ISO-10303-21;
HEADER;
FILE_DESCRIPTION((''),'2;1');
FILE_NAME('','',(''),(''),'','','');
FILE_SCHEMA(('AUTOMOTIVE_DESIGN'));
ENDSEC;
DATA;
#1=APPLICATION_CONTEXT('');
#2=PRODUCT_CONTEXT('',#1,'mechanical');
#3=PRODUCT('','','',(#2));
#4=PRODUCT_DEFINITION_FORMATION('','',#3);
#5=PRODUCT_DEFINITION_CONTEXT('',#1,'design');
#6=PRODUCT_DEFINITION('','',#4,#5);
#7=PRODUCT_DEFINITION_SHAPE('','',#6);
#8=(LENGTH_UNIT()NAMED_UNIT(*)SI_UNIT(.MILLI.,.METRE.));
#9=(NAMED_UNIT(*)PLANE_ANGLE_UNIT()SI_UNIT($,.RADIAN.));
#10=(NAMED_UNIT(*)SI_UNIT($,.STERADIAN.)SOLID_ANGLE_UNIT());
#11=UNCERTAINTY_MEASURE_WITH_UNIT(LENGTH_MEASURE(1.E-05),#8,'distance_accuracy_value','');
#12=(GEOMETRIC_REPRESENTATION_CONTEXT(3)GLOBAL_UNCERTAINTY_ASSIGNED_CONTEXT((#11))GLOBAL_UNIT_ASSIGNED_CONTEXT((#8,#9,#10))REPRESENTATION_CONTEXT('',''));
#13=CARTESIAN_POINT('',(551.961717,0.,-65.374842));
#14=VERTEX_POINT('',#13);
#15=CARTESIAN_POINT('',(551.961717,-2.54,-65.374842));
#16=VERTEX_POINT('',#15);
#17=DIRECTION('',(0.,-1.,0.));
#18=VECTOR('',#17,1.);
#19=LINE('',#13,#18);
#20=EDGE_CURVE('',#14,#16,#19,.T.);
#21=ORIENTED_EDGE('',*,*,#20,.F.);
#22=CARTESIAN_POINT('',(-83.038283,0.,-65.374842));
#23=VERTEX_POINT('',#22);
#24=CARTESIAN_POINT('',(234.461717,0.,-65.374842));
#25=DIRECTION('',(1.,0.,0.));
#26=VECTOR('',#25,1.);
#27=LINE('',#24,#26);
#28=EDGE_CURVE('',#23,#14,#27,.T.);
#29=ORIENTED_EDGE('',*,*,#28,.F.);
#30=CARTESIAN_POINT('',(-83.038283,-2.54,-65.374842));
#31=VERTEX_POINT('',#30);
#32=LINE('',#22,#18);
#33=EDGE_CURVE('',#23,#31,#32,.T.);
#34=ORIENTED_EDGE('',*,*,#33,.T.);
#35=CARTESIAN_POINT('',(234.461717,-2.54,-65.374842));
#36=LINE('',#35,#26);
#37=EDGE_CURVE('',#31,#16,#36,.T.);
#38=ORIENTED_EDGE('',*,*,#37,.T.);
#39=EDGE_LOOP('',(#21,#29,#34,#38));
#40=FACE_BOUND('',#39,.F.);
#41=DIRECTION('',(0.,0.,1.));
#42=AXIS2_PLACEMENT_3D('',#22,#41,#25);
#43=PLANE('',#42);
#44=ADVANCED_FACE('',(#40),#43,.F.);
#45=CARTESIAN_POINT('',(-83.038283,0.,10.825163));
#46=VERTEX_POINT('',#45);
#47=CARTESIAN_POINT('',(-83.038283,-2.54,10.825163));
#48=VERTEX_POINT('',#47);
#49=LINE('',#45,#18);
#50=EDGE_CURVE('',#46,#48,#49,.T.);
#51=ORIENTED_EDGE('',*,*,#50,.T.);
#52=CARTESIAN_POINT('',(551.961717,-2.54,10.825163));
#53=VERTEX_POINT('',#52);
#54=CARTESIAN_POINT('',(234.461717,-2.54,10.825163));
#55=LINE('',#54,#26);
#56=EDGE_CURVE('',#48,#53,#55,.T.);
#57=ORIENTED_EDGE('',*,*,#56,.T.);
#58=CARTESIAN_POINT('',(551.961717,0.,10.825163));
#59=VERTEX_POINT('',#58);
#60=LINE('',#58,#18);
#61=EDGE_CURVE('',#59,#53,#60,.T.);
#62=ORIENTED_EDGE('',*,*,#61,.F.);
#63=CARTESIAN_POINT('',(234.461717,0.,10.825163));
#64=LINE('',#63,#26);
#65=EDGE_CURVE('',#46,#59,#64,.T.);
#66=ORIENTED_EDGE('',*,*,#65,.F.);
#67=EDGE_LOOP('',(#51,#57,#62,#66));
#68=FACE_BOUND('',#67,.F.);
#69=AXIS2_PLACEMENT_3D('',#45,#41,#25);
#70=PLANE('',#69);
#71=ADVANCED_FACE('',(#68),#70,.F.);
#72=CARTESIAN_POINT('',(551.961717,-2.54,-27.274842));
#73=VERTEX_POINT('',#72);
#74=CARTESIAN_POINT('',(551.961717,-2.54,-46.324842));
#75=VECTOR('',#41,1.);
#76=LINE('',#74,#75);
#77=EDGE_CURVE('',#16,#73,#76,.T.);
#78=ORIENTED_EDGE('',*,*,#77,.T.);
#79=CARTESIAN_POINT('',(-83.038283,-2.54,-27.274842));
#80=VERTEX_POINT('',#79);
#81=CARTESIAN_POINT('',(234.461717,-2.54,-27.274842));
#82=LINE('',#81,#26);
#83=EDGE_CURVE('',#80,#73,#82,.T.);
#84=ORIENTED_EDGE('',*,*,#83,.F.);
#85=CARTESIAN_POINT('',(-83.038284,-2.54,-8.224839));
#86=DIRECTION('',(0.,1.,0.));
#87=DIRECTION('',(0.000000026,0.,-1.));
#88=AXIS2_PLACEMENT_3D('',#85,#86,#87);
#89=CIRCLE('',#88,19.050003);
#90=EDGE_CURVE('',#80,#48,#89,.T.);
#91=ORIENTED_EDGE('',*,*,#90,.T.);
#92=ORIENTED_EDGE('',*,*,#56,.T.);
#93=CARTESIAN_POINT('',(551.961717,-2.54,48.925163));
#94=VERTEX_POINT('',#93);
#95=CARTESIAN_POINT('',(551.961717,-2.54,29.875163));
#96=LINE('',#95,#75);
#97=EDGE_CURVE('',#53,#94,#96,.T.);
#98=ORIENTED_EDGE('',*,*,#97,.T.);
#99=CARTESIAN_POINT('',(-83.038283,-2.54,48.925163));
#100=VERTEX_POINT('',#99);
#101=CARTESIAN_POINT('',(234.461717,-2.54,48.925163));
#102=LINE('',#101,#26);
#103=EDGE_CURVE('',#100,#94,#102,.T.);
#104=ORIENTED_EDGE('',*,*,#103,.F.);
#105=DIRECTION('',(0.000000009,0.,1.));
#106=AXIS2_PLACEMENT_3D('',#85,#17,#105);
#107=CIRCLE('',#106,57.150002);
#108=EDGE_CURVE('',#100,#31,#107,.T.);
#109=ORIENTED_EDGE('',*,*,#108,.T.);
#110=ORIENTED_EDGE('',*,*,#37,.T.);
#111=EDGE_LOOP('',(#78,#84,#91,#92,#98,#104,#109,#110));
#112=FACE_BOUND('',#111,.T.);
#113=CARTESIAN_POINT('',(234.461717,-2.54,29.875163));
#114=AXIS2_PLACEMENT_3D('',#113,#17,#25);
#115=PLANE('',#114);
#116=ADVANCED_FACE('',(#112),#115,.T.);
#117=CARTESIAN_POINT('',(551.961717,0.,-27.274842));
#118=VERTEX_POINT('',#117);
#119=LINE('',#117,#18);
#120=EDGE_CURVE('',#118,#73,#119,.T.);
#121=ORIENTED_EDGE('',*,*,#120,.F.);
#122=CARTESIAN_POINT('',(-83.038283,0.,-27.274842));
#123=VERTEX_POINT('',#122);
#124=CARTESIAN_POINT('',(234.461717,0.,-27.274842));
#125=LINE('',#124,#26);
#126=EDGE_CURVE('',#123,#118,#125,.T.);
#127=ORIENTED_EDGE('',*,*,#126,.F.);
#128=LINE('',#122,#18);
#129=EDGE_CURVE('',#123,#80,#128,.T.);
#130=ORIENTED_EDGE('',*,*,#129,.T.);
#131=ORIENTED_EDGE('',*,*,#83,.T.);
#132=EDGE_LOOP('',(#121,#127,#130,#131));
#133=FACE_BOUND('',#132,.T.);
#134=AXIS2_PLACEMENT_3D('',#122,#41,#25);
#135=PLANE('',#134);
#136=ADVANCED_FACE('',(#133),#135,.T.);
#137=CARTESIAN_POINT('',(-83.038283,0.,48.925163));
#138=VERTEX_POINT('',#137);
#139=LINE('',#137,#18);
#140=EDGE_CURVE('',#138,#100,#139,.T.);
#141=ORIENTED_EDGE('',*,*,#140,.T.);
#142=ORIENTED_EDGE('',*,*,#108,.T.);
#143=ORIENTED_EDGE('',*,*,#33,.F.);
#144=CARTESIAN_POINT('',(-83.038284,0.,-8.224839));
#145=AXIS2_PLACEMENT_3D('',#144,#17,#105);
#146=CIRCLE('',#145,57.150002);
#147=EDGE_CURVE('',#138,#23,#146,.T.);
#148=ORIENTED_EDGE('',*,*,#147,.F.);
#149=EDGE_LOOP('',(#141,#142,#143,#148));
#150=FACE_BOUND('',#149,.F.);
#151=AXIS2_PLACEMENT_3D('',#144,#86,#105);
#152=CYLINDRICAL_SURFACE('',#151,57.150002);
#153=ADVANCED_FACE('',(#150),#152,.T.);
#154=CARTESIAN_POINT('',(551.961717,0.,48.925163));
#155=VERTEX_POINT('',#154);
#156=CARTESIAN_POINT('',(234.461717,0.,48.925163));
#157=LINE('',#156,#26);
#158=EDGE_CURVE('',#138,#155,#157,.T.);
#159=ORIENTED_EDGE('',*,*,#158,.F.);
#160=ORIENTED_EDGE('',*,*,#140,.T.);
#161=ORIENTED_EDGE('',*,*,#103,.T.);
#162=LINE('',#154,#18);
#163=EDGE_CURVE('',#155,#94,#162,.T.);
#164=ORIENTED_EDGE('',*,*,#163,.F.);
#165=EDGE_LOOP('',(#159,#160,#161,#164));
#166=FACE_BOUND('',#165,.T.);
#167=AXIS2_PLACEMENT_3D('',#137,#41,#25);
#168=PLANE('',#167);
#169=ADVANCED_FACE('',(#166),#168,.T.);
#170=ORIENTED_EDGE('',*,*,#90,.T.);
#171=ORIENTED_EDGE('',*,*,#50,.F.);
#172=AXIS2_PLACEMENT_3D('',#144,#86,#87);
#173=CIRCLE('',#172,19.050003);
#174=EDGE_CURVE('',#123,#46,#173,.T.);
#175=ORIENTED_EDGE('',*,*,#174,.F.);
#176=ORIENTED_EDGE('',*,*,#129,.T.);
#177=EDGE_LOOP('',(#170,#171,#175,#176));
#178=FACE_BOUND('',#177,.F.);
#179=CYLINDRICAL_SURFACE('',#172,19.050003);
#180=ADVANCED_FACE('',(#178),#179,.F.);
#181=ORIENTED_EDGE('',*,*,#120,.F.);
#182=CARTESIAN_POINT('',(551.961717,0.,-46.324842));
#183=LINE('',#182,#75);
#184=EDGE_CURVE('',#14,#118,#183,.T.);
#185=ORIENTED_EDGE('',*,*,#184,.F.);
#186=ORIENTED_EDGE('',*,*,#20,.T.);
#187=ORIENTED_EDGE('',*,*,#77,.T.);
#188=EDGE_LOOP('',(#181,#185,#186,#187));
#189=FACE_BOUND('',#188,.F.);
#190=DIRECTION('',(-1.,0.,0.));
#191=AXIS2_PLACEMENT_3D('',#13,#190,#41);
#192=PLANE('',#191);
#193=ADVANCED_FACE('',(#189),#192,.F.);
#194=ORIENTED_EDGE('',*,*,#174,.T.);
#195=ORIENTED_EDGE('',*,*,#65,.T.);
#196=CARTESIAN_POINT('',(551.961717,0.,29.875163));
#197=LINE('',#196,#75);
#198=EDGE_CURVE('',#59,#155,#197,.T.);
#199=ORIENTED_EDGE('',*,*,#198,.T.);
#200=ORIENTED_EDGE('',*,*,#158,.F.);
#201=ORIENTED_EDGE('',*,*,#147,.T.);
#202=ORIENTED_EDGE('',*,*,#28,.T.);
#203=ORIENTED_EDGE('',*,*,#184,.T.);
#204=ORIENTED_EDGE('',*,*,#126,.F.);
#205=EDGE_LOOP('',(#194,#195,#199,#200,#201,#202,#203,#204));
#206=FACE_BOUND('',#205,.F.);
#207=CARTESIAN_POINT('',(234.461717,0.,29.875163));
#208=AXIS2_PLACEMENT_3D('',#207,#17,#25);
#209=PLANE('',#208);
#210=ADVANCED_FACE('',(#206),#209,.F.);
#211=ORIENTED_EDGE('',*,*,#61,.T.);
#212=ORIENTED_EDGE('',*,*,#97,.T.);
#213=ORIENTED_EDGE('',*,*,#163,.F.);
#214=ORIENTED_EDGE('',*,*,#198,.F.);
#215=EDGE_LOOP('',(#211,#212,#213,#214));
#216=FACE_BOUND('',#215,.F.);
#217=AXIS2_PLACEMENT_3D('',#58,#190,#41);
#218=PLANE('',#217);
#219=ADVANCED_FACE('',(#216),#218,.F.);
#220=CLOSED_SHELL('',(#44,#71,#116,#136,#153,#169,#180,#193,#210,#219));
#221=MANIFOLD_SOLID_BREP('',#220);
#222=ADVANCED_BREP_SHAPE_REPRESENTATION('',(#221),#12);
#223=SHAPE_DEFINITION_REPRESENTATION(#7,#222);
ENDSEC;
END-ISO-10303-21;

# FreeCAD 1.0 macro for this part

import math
import FreeCAD as App
import Part
import Sketcher
Q = App.Units.Quantity

doc = App.newDocument("Part")
body = doc.addObject("PartDesign::Body", "Body")

# Sketch on XZ plane
sketch1 = body.newObject("Sketcher::SketchObject", "Sketch")
sketch1.AttachmentSupport = (doc.getObject("XZ_Plane"), [""])
sketch1.MapMode = "FlatFace"
sketch1.addGeometry(Part.LineSegment(App.Vector(-83, 11, 0), App.Vector(552, 11, 0)), False)
sketch1.addGeometry(Part.LineSegment(App.Vector(552, 11, 0), App.Vector(552, 49, 0)), False)
sketch1.addGeometry(Part.LineSegment(App.Vector(552, 49, 0), App.Vector(-83, 49, 0)), False)
sketch1.addGeometry(Part.ArcOfCircle(Part.Circle(App.Vector(-83, -8, 0), App.Vector(0, 0, 1), 57), math.radians(90), math.radians(270)), False)
sketch1.addGeometry(Part.LineSegment(App.Vector(-83, -65, 0), App.Vector(552, -65, 0)), False)
sketch1.addGeometry(Part.LineSegment(App.Vector(552, -65, 0), App.Vector(552, -27, 0)), False)
sketch1.addGeometry(Part.LineSegment(App.Vector(552, -27, 0), App.Vector(-83, -27, 0)), False)
sketch1.addGeometry(Part.ArcOfCircle(Part.Circle(App.Vector(-83, -8, 0), App.Vector(0, 0, 1), 19), math.radians(90), math.radians(270)), False)
sketch1.addConstraint(Sketcher.Constraint("Coincident", 0, 2, 1, 1))
sketch1.addConstraint(Sketcher.Constraint("Coincident", 1, 2, 2, 1))
sketch1.addConstraint(Sketcher.Constraint("Tangent", 2, 2, 3, 1))
sketch1.addConstraint(Sketcher.Constraint("Tangent", 3, 2, 4, 1))
sketch1.addConstraint(Sketcher.Constraint("Coincident", 4, 2, 5, 1))
sketch1.addConstraint(Sketcher.Constraint("Coincident", 5, 2, 6, 1))
sketch1.addConstraint(Sketcher.Constraint("Tangent", 6, 2, 7, 2))
sketch1.addConstraint(Sketcher.Constraint("Tangent", 7, 1, 0, 1))
sketch1.addConstraint(Sketcher.Constraint("Horizontal", 0))
sketch1.addConstraint(Sketcher.Constraint("Vertical", 1))
sketch1.addConstraint(Sketcher.Constraint("Horizontal", 2))
sketch1.addConstraint(Sketcher.Constraint("Horizontal", 4))
sketch1.addConstraint(Sketcher.Constraint("Vertical", 5))
sketch1.addConstraint(Sketcher.Constraint("Horizontal", 6))
sketch1.addConstraint(Sketcher.Constraint("Coincident", 7, 3, 3, 3))
sketch1.addConstraint(Sketcher.Constraint("Vertical", 1, 2, 4, 2))
sketch1.addConstraint(Sketcher.Constraint("DistanceX", 0, 1, 0, 2, Q("25 in")))
sketch1.addConstraint(Sketcher.Constraint("Radius", 3, Q("2.2500001 in")))
sketch1.addConstraint(Sketcher.Constraint("Radius", 7, Q("0.7500001 in")))
sketch1.addConstraint(Sketcher.Constraint("DistanceY", 3, 3, -1, 1, Q("8.224839 mm")))
sketch1.addConstraint(Sketcher.Constraint("DistanceX", 3, 3, -1, 1, Q("83.038284 mm")))
pad1 = body.newObject("PartDesign::Pad", "Pad")
pad1.Profile = sketch1
pad1.Length = Q("0.1 in")

doc.recompute()
